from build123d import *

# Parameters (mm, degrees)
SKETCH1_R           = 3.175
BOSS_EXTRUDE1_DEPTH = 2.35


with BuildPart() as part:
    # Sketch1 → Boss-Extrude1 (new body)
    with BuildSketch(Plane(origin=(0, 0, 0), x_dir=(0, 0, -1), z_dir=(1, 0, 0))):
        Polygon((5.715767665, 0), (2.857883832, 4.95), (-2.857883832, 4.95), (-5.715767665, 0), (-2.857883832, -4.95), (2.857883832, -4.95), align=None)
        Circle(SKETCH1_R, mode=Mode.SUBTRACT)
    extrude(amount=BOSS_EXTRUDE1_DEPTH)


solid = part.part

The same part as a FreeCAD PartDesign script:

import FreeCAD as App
import Part
import Sketcher
Q = App.Units.Quantity


def add_polygon(sketch, points):
    """Adds a closed chain of lines whose ends are joined by coincident constraints."""
    first, n = sketch.GeometryCount, len(points)
    for a, b in zip(points, points[1:] + points[:1]):
        sketch.addGeometry(Part.LineSegment(App.Vector(*a, 0), App.Vector(*b, 0)), False)
    for i in range(n):
        sketch.addConstraint(Sketcher.Constraint("Coincident", first + i, 2, first + (i + 1) % n, 1))

doc = App.newDocument("Part")
body = doc.addObject("PartDesign::Body", "Body")

# Sketch on YZ plane
sketch1 = body.newObject("Sketcher::SketchObject", "Sketch")
sketch1.AttachmentSupport = (doc.getObject("YZ_Plane"), [""])
sketch1.MapMode = "FlatFace"
add_polygon(sketch1, [(0, -5.7), (5, -2.9), (5, 2.9), (0, 5.7), (-5, 2.9), (-5, -2.9)])  # lines 0-5
sketch1.addGeometry(Part.Circle(App.Vector(0, 0, 0), App.Vector(0, 0, 1), 3.2), False)  # 6
sketch1.addConstraint([
    Sketcher.Constraint("Vertical", 1),
    Sketcher.Constraint("Vertical", 4),
    Sketcher.Constraint("Coincident", 6, 3, -1, 1),
    Sketcher.Constraint("Symmetric", 0, 2, 3, 2, -1, 1),
    Sketcher.Constraint("Symmetric", 2, 2, 5, 2, -1, 1),
    Sketcher.Constraint("PointOnObject", 2, 2, -2),
    Sketcher.Constraint("Parallel", 2, 5),
    Sketcher.Constraint("Horizontal", 1, 2, 3, 2),
    Sketcher.Constraint("Diameter", 6, Q("0.25 in")),
    Sketcher.Constraint("Angle", 0, Q("30 deg")),
    Sketcher.Constraint("DistanceX", -1, 1, 0, 2, Q("4.95 mm")),
    Sketcher.Constraint("DistanceY", 1, 1, 1, 2, Q("5.715768 mm")),
])
pad1 = body.newObject("PartDesign::Pad", "Pad")
pad1.Profile = sketch1
pad1.Length = 2.35

doc.recompute()
